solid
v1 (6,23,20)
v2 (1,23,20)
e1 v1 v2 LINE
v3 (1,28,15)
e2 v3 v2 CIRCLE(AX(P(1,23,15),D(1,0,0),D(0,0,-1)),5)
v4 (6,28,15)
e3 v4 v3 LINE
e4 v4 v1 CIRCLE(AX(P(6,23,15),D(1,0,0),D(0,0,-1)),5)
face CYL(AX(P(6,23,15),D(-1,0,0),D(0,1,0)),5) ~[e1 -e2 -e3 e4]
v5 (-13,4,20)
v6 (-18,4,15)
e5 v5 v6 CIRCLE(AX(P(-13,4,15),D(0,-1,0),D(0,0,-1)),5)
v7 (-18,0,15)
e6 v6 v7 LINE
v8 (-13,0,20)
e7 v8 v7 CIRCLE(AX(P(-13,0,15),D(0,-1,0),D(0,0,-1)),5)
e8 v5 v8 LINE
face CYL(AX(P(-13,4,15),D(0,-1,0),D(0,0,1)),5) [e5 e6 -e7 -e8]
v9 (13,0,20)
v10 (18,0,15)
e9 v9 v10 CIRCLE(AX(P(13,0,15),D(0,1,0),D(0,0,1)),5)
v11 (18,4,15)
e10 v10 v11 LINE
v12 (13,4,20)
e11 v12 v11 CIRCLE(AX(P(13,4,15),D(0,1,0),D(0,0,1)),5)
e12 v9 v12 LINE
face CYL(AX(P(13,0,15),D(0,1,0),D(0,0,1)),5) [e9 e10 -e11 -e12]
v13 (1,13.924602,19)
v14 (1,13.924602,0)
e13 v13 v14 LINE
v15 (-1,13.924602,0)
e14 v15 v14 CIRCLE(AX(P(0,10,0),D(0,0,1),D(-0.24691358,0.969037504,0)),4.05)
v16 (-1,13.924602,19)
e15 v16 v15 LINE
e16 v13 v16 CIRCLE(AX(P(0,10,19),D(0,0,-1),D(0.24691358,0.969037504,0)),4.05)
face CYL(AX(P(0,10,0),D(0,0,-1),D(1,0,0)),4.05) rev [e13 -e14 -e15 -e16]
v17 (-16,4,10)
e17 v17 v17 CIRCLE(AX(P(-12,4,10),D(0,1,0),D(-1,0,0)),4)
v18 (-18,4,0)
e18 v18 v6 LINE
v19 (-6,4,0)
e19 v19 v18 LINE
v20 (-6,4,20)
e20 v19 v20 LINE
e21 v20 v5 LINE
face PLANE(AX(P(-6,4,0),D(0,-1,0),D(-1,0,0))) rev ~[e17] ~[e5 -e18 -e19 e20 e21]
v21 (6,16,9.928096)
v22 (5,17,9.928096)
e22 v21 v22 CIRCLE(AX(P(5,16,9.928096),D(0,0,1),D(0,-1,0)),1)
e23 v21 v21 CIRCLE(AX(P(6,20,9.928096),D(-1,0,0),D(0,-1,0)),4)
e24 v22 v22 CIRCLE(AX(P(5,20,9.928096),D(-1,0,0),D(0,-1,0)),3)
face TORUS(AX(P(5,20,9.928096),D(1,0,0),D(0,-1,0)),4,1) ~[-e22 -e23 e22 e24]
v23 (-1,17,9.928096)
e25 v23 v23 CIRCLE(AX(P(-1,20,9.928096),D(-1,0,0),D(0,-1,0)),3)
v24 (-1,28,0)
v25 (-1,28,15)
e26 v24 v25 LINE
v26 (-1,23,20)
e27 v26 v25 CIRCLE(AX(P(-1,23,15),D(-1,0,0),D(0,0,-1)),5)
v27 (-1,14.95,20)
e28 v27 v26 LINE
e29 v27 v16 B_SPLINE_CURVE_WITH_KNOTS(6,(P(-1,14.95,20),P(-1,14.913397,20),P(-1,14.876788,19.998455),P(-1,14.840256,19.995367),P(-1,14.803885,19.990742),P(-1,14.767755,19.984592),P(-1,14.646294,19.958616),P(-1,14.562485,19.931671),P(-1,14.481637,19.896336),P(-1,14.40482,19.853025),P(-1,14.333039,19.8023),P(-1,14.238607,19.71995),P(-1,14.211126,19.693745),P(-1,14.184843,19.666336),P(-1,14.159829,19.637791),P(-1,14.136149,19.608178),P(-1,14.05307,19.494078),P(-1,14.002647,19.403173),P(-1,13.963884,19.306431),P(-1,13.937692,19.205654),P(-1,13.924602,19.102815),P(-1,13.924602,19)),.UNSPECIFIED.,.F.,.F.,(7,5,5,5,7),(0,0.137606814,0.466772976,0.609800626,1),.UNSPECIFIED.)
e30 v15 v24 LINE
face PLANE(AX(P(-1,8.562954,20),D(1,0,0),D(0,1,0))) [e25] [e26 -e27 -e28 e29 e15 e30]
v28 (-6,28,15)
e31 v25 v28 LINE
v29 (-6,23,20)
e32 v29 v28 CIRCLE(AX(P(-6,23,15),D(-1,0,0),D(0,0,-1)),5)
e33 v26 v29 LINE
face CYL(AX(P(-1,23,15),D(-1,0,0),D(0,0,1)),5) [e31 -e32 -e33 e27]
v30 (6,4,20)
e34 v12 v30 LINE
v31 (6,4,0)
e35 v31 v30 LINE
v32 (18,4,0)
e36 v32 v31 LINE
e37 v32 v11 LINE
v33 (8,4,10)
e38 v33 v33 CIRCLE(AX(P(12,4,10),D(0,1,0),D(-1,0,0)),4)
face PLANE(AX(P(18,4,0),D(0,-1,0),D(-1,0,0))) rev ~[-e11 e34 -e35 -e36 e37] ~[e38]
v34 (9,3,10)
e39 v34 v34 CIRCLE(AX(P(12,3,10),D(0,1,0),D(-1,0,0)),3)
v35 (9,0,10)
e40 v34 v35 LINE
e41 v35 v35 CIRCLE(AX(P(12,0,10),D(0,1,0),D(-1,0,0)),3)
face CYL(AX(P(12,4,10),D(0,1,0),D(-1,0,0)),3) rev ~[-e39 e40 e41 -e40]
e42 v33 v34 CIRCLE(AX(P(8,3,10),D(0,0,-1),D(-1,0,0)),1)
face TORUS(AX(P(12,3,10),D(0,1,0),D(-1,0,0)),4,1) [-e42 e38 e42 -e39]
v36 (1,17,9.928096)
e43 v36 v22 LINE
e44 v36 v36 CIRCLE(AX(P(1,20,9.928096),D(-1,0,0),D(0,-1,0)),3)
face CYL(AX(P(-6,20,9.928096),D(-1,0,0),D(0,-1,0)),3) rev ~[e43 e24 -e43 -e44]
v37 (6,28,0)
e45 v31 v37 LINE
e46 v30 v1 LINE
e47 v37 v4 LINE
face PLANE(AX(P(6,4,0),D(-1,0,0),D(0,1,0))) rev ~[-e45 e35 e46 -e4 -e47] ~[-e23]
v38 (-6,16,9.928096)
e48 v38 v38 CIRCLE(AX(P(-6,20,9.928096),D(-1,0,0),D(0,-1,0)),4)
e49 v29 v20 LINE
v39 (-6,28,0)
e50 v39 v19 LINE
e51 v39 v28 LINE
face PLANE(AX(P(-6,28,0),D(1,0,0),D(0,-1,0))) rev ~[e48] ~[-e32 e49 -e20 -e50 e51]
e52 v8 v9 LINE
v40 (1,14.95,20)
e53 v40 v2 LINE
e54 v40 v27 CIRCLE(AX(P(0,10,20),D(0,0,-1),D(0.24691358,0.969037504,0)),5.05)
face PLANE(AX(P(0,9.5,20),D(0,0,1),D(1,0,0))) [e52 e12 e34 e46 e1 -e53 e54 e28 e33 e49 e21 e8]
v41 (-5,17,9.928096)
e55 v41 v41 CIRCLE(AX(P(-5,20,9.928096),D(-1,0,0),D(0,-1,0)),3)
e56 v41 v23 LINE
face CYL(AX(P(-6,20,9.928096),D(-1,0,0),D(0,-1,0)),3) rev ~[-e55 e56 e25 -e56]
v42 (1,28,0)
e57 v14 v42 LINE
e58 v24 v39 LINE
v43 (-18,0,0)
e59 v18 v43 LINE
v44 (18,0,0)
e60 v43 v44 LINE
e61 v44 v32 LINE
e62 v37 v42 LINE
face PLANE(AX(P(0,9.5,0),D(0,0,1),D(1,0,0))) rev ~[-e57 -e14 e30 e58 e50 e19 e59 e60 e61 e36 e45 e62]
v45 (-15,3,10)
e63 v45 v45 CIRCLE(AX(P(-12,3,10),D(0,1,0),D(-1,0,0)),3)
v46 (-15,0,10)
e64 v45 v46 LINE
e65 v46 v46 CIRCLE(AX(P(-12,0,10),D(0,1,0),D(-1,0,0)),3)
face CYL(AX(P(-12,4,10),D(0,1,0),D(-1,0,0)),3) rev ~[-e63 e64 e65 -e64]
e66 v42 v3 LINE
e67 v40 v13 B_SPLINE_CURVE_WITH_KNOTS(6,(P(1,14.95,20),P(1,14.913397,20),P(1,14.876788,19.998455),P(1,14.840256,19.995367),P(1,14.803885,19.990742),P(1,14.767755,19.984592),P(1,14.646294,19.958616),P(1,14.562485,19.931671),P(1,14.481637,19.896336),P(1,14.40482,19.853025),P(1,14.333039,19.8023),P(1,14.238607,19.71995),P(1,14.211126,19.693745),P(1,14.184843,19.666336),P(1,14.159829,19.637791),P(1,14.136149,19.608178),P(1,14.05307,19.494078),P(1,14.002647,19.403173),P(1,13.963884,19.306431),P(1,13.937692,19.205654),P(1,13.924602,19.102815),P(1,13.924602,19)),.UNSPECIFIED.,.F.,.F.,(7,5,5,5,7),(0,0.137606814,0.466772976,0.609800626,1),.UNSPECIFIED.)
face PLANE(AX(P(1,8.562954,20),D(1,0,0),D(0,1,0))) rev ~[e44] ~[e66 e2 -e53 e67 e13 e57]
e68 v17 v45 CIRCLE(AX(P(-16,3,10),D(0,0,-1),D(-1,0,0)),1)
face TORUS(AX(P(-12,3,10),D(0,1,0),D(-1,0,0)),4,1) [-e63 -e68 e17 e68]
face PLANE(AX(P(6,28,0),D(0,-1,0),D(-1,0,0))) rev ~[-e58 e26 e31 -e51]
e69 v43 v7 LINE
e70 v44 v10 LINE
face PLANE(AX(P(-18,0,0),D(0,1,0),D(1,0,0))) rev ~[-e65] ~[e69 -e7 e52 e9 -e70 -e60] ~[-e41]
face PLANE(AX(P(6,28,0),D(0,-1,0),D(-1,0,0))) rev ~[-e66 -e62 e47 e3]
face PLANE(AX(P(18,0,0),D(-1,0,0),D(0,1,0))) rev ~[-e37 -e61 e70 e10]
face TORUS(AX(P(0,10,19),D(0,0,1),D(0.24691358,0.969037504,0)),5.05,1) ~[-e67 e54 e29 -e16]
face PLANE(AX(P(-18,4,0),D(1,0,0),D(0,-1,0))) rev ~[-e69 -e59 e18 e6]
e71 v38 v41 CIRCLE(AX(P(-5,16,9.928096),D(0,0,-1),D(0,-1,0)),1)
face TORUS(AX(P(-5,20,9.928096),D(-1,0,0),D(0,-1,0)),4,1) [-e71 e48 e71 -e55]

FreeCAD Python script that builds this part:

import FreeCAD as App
import Part
import Sketcher

V = App.Vector


def edges_at(feature, points):
    """Names of the edges that pass closest to the given points."""
    edges = feature.Shape.Edges
    near = lambda p: min(range(len(edges)), key=lambda i: edges[i].distToShape(Part.Vertex(*p))[0])
    return sorted({f"Edge{near(p) + 1}" for p in points})


def add_polygon(sketch, points):
    """Adds a closed chain of lines whose ends are joined by coincident constraints."""
    first, n = sketch.GeometryCount, len(points)
    for a, b in zip(points, points[1:] + points[:1]):
        sketch.addGeometry(Part.LineSegment(App.Vector(*a, 0), App.Vector(*b, 0)), False)
    for i in range(n):
        sketch.addConstraint(Sketcher.Constraint("Coincident", first + i, 2, first + (i + 1) % n, 1))

doc = App.newDocument("Part")
body = doc.addObject("PartDesign::Body", "Body")

# Sketch on XY plane
sketch1 = body.newObject("Sketcher::SketchObject", "Sketch")
sketch1.AttachmentSupport = (doc.getObject("XY_Plane"), [""])
sketch1.MapMode = "FlatFace"
add_polygon(sketch1, [(6, 28), (-6, 28), (-6, 4), (-18, 4), (-18, 0), (18, 0), (18, 4), (6, 4)])  # lines 0-7
sketch1.addGeometry(Part.Circle(V(0, 10, 0), V(0, 0, 1), 4.05), False)  # 8
sketch1.addConstraint(Sketcher.Constraint("Horizontal", 0))
sketch1.addConstraint(Sketcher.Constraint("Vertical", 1))
sketch1.addConstraint(Sketcher.Constraint("Horizontal", 2))
sketch1.addConstraint(Sketcher.Constraint("Vertical", 3))
sketch1.addConstraint(Sketcher.Constraint("Horizontal", 4))
sketch1.addConstraint(Sketcher.Constraint("Vertical", 5))
sketch1.addConstraint(Sketcher.Constraint("Horizontal", 6))
sketch1.addConstraint(Sketcher.Constraint("Vertical", 7))
sketch1.addConstraint(Sketcher.Constraint("Symmetric", 3, 2, 4, 2, -1, 1))
sketch1.addConstraint(Sketcher.Constraint("Symmetric", 1, 2, 6, 2, -2))
sketch1.addConstraint(Sketcher.Constraint("PointOnObject", 8, 3, -2))
sketch1.addConstraint(Sketcher.Constraint("Equal", 0, 2))
sketch1.addConstraint(Sketcher.Constraint("Diameter", 8, 8.1))
sketch1.addConstraint(Sketcher.Constraint("DistanceX", 0, 2, 0, 1, 12.0))
sketch1.addConstraint(Sketcher.Constraint("DistanceY", 1, 2, 1, 1, 24.0))
sketch1.addConstraint(Sketcher.Constraint("DistanceY", 3, 2, 3, 1, 4.0))
sketch1.addConstraint(Sketcher.Constraint("DistanceY", -1, 1, 8, 3, 10.0))
pad1 = body.newObject("PartDesign::Pad", "Pad")
pad1.Profile = sketch1
pad1.Length = 20

# Sketch on XY plane
sketch2 = body.newObject("Sketcher::SketchObject", "Sketch001")
sketch2.AttachmentSupport = (doc.getObject("XY_Plane"), [""])
sketch2.MapMode = "FlatFace"
sketch2.AttachmentOffset = App.Placement(V(0, 0, 20), App.Rotation())
add_polygon(sketch2, [(-1, 34.104652), (-1, 8.562954), (1, 8.562954), (1, 34.104652)])  # lines 0-3
sketch2.addConstraint(Sketcher.Constraint("Vertical", 0))
sketch2.addConstraint(Sketcher.Constraint("Horizontal", 1))
sketch2.addConstraint(Sketcher.Constraint("Vertical", 2))
sketch2.addConstraint(Sketcher.Constraint("Horizontal", 3))
sketch2.addConstraint(Sketcher.Constraint("DistanceX", 1, 1, 1, 2, 2.0))
sketch2.addConstraint(Sketcher.Constraint("DistanceX", 0, 2, -1, 1, 1.0))
sketch2.addConstraint(Sketcher.Constraint("DistanceY", 0, 2, 0, 1, 25.541698))
sketch2.addConstraint(Sketcher.Constraint("DistanceY", -1, 1, 2, 2, 34.104652))
pocket1 = body.newObject("PartDesign::Pocket", "Pocket")
pocket1.Profile = sketch2
pocket1.Length = 25

# Sketch on YZ plane
sketch3 = body.newObject("Sketcher::SketchObject", "Sketch002")
sketch3.AttachmentSupport = (doc.getObject("YZ_Plane"), [""])
sketch3.MapMode = "FlatFace"
sketch3.AttachmentOffset = App.Placement(V(0, 0, -6), App.Rotation())
sketch3.addGeometry(Part.Circle(V(20, 9.928096, 0), V(0, 0, 1), 3), False)
sketch3.addConstraint(Sketcher.Constraint("Diameter", 0, 6.0))
sketch3.addConstraint(Sketcher.Constraint("DistanceX", -1, 1, 0, 3, 20.0))
sketch3.addConstraint(Sketcher.Constraint("DistanceY", -1, 1, 0, 3, 9.928096))
pocket2 = body.newObject("PartDesign::Pocket", "Pocket001")
pocket2.Profile = sketch3
pocket2.Length = 25
pocket2.Reversed = True

# Sketch on XZ plane
sketch4 = body.newObject("Sketcher::SketchObject", "Sketch003")
sketch4.AttachmentSupport = (doc.getObject("XZ_Plane"), [""])
sketch4.MapMode = "FlatFace"
sketch4.AttachmentOffset = App.Placement(V(0, 0, -4), App.Rotation())
sketch4.addGeometry(Part.Circle(V(-12, 10, 0), V(0, 0, 1), 3), False)
sketch4.addGeometry(Part.Circle(V(12, 10, 0), V(0, 0, 1), 3), False)
sketch4.addConstraint(Sketcher.Constraint("Equal", 0, 1))
sketch4.addConstraint(Sketcher.Constraint("Symmetric", 0, 3, 1, 3, -2))
sketch4.addConstraint(Sketcher.Constraint("Diameter", 0, 6.0))
sketch4.addConstraint(Sketcher.Constraint("DistanceX", 0, 3, -1, 1, 12.0))
sketch4.addConstraint(Sketcher.Constraint("DistanceY", -1, 1, 0, 3, 10.0))
pocket3 = body.newObject("PartDesign::Pocket", "Pocket002")
pocket3.Profile = sketch4
pocket3.Length = 25
pocket3.Reversed = True
doc.recompute()

fillet = body.newObject("PartDesign::Fillet", "Fillet")
fillet.Base = (pocket3, edges_at(pocket3, [
    (3.5, 28, 20),
    (-3.5, 28, 20),
    (-18, 2, 20),
    (18, 2, 20),
]))
fillet.Radius = 5
doc.recompute()

fillet2 = body.newObject("PartDesign::Fillet", "Fillet001")
fillet2.Base = (fillet, edges_at(fillet, [
    (0, 5.95, 20),
    (-9, 4, 10),
    (15, 4, 10),
    (-6, 23, 9.928),
    (6, 23, 9.928),
]))
fillet2.Radius = 1

doc.recompute()
